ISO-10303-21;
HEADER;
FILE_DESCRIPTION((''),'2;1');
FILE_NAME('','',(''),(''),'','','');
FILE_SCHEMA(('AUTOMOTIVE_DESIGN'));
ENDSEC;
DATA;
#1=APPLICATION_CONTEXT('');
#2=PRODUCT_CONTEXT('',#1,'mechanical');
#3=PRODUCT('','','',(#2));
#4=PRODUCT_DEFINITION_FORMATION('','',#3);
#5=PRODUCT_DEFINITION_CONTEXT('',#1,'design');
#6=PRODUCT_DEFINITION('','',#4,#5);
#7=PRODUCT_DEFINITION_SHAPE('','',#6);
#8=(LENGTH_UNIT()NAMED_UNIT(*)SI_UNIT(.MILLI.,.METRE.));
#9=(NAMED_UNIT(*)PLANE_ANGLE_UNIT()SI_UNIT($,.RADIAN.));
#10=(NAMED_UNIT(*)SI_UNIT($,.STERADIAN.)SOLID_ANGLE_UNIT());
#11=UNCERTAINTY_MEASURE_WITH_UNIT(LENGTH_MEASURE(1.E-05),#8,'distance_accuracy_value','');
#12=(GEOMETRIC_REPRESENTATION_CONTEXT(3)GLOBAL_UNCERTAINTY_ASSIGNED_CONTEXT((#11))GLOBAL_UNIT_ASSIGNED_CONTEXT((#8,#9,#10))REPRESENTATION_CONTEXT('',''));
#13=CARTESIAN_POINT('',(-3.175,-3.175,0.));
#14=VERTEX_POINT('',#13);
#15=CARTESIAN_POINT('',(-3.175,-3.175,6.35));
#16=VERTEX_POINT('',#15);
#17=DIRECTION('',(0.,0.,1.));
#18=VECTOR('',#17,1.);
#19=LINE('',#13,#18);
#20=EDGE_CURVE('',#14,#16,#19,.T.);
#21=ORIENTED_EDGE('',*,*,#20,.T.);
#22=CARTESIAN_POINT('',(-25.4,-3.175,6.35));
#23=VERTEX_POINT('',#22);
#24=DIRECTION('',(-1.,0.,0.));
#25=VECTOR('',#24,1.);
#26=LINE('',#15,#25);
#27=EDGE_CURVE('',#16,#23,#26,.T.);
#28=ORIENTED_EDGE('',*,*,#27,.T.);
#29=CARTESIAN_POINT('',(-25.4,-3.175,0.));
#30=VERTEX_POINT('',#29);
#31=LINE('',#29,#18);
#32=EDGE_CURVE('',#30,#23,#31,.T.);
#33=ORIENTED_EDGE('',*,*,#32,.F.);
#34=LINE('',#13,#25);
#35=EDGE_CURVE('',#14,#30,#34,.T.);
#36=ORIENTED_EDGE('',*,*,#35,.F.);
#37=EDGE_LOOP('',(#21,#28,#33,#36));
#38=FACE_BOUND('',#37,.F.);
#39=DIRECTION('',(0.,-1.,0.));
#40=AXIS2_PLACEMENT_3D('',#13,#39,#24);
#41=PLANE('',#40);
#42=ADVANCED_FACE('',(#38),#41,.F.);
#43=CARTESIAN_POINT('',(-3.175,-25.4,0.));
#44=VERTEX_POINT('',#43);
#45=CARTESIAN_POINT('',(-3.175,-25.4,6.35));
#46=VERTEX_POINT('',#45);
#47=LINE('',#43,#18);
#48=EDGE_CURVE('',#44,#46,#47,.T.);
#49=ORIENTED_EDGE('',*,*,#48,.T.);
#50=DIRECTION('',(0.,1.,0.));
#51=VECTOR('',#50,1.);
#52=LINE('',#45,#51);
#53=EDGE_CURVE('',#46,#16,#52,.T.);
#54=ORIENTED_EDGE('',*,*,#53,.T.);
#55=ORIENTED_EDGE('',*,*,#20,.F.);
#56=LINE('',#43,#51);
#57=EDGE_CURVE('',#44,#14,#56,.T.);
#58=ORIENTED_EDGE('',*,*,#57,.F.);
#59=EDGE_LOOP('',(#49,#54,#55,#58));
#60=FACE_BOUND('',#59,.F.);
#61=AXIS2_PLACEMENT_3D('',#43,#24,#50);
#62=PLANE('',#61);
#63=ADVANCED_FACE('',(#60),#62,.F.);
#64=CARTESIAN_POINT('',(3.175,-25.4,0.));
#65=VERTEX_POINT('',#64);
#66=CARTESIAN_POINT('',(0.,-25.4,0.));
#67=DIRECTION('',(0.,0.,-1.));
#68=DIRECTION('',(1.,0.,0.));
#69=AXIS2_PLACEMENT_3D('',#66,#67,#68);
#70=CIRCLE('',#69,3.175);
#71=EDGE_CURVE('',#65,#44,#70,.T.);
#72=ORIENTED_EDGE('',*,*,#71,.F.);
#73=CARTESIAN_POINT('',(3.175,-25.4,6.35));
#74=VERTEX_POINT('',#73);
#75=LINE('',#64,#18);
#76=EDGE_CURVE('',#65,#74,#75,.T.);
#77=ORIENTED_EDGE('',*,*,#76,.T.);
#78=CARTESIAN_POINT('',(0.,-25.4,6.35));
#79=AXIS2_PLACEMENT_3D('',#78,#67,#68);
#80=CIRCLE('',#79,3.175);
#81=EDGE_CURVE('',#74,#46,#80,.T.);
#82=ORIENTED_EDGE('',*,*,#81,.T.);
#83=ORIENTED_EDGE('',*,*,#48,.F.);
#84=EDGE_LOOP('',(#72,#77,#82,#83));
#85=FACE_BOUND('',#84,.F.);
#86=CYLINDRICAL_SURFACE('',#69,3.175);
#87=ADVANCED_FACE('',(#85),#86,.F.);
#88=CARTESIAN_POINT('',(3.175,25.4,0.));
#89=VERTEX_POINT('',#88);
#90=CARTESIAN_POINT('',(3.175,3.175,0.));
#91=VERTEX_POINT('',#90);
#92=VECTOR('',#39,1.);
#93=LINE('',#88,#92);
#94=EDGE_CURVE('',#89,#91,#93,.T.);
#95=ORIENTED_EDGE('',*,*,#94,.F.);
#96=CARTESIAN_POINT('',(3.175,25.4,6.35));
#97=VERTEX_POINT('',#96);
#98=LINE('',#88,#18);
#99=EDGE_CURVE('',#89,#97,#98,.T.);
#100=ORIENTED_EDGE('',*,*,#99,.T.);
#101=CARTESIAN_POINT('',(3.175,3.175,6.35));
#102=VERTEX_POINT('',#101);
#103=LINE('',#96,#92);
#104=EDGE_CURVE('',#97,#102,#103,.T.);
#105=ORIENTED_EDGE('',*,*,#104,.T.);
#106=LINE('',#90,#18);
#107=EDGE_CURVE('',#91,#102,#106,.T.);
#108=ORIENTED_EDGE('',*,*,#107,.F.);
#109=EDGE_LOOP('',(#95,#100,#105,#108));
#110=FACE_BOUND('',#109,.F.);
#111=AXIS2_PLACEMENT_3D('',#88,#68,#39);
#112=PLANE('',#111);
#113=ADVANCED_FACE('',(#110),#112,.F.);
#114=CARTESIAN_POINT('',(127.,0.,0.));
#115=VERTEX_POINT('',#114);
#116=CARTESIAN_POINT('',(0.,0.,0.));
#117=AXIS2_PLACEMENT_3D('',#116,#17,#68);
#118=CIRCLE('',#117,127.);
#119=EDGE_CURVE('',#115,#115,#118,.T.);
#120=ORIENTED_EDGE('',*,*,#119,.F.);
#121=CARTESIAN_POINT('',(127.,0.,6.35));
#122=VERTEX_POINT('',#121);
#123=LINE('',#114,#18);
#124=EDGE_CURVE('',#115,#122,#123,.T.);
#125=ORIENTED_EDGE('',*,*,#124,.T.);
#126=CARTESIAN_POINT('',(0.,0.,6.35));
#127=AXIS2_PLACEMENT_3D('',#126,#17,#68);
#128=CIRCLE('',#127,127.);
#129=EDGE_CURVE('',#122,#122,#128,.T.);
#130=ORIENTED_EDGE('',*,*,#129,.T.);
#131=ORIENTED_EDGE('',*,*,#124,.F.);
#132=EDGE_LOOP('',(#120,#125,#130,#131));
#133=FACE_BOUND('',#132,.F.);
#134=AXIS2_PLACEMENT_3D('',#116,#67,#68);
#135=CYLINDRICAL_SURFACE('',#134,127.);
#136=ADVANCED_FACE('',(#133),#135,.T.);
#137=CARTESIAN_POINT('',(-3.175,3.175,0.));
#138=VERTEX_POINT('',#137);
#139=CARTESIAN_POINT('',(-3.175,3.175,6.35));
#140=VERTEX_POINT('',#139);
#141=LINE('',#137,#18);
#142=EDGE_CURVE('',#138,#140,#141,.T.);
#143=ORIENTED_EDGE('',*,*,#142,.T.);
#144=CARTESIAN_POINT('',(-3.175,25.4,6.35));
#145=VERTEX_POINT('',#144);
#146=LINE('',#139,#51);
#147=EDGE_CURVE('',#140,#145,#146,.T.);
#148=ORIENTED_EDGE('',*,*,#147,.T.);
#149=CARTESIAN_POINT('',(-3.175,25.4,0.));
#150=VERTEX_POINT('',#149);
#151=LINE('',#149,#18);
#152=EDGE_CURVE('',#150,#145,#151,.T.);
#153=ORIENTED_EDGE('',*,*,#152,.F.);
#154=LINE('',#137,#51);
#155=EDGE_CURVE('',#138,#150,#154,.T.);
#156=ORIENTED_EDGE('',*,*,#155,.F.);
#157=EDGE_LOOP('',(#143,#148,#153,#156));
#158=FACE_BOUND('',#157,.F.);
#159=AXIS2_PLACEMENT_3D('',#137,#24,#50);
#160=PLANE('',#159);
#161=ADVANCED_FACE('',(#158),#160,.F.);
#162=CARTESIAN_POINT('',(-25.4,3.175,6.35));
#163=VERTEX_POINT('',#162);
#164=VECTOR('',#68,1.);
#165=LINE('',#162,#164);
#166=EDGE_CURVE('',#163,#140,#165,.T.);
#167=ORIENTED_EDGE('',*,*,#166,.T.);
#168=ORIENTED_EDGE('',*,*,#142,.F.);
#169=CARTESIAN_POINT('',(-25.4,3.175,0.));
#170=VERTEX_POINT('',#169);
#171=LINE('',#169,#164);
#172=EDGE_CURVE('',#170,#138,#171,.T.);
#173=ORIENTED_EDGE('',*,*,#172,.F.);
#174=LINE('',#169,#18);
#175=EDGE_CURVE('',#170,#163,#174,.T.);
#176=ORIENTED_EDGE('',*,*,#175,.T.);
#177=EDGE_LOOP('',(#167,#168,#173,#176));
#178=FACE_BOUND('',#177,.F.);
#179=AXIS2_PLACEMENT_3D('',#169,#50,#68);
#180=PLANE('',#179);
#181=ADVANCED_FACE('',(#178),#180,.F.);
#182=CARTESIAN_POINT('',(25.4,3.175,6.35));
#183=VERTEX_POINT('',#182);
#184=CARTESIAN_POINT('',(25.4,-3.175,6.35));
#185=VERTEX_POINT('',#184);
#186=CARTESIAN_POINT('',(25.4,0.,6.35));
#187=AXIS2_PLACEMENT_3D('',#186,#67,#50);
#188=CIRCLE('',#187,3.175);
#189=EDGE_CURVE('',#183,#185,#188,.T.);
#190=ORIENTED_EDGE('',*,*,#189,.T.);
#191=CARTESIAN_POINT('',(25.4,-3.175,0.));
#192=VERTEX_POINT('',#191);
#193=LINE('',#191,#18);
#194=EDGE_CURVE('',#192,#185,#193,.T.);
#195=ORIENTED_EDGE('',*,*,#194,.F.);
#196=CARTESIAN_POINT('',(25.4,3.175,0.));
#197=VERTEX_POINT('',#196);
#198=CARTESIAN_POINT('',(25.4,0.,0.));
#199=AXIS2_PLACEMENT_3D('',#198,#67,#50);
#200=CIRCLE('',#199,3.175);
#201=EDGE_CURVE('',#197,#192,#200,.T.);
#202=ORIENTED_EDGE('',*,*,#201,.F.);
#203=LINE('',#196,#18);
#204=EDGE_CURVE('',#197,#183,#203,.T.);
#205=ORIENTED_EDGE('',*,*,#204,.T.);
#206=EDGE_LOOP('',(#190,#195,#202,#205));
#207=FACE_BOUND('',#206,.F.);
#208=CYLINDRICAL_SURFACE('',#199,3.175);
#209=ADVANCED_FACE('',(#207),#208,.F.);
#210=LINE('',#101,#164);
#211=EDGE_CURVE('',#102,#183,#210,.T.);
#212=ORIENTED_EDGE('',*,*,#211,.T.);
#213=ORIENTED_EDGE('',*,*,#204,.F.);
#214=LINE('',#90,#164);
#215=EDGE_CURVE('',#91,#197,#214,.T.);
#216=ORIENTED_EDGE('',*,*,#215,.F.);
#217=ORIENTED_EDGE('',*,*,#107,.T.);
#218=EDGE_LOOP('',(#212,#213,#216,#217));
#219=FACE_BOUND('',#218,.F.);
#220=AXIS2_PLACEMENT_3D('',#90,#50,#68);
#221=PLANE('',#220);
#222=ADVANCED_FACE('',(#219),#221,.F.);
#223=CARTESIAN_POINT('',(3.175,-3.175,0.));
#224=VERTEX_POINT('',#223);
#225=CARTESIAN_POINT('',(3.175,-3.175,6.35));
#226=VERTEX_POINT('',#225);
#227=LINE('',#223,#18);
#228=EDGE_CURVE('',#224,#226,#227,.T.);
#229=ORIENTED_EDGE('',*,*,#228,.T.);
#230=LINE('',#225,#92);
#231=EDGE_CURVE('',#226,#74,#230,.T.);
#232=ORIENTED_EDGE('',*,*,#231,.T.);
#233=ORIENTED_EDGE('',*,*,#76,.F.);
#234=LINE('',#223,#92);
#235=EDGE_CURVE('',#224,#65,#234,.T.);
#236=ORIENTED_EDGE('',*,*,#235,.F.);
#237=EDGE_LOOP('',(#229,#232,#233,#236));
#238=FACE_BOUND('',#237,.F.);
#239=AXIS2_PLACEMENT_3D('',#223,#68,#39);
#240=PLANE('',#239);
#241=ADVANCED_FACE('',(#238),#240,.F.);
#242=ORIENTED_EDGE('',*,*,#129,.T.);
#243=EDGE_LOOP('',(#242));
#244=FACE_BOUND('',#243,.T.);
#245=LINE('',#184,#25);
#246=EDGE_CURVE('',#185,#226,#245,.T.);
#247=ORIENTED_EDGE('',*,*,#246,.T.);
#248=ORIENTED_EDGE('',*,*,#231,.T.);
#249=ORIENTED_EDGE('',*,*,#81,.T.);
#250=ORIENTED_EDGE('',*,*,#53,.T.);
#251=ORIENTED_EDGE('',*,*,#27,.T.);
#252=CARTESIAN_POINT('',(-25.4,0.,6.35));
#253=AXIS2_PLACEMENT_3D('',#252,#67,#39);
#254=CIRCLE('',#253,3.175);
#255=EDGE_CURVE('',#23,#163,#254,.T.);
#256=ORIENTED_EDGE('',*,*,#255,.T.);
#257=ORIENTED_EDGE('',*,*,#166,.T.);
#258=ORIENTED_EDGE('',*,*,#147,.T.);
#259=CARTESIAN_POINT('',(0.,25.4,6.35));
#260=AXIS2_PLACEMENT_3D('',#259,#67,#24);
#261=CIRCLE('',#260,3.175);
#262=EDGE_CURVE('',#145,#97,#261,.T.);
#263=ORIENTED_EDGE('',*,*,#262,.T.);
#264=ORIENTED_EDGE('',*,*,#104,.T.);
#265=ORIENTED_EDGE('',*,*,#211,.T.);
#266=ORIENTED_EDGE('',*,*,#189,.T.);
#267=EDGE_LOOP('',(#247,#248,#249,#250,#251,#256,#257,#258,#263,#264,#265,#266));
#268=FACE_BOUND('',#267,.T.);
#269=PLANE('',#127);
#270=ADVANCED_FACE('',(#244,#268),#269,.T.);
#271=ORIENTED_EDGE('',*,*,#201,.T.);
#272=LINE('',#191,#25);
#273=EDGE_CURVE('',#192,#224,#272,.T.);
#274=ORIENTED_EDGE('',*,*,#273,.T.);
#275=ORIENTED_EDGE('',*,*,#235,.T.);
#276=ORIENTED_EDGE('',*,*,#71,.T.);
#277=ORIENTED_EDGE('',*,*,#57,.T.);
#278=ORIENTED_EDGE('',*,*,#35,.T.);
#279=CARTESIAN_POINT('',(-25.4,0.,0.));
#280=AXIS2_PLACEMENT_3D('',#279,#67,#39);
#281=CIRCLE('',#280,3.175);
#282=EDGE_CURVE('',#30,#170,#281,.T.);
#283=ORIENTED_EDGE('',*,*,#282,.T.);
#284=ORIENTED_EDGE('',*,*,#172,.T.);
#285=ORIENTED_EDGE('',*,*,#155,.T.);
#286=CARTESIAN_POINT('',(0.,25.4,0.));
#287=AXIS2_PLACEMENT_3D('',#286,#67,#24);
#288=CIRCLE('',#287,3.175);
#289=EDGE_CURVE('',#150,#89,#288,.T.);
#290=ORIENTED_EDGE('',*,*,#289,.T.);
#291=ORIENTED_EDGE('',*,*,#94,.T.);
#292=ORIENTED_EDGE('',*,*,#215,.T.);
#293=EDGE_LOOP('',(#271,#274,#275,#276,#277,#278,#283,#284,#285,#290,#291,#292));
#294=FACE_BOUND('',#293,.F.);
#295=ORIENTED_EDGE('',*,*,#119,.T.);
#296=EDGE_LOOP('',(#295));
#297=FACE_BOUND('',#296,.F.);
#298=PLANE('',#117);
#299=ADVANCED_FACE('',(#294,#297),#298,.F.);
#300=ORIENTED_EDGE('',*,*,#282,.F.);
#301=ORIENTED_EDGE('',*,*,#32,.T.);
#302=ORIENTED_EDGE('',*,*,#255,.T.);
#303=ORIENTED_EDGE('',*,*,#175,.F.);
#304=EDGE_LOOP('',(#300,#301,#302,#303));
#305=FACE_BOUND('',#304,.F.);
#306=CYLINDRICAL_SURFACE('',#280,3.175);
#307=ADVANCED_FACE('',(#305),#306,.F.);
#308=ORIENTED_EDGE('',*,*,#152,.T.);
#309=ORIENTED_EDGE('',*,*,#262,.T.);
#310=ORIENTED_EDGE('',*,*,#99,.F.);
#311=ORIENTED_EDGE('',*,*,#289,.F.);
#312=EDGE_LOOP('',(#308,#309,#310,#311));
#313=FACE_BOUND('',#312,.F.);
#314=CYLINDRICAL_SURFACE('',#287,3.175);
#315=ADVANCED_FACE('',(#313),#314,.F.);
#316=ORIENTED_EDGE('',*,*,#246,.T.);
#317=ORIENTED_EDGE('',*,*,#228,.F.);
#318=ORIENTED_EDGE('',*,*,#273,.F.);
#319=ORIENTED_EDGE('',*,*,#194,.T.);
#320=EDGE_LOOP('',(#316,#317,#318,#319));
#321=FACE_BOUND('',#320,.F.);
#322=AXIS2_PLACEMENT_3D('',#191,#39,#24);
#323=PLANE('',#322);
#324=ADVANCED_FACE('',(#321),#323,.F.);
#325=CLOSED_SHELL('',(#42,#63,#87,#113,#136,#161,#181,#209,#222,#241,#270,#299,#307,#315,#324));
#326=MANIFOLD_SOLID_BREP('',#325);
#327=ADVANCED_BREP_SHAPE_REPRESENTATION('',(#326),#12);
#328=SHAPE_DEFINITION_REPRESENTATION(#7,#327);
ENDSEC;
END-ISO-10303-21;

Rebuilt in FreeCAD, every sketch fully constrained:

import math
import FreeCAD as App
import Part
import Sketcher
Q = App.Units.Quantity

doc = App.newDocument("Part")
body = doc.addObject("PartDesign::Body", "Body")

sketch1 = doc.addObject("Sketcher::SketchObject", "Sketch")
body.addObject(sketch1)
sketch1.AttachmentSupport = (doc.XY_Plane, [""])
sketch1.MapMode = "FlatFace"
sketch1.addGeometry(Part.Circle(App.Vector(0, 0, 0), App.Vector(0, 0, 1), 127), False)
sketch1.addGeometry(Part.ArcOfCircle(Part.Circle(App.Vector(0, -25.4, 0), App.Vector(0, 0, 1), 3.2), math.radians(180), math.radians(360)), False)
sketch1.addGeometry(Part.LineSegment(App.Vector(-3.2, -25.4, 0), App.Vector(-3.2, -3.2, 0)), False)
sketch1.addGeometry(Part.LineSegment(App.Vector(-3.2, -3.2, 0), App.Vector(-25.4, -3.2, 0)), False)
sketch1.addGeometry(Part.ArcOfCircle(Part.Circle(App.Vector(-25.4, 0, 0), App.Vector(0, 0, 1), 3.2), math.radians(90), math.radians(270)), False)
sketch1.addGeometry(Part.LineSegment(App.Vector(-25.4, 3.2, 0), App.Vector(-3.2, 3.2, 0)), False)
sketch1.addGeometry(Part.LineSegment(App.Vector(-3.2, 3.2, 0), App.Vector(-3.2, 25.4, 0)), False)
sketch1.addGeometry(Part.ArcOfCircle(Part.Circle(App.Vector(0, 25.4, 0), App.Vector(0, 0, 1), 3.2), math.radians(0), math.radians(180)), False)
sketch1.addGeometry(Part.LineSegment(App.Vector(3.2, 25.4, 0), App.Vector(3.2, 3.2, 0)), False)
sketch1.addGeometry(Part.LineSegment(App.Vector(3.2, 3.2, 0), App.Vector(25.4, 3.2, 0)), False)
sketch1.addGeometry(Part.ArcOfCircle(Part.Circle(App.Vector(25.4, 0, 0), App.Vector(0, 0, 1), 3.2), math.radians(-90), math.radians(90)), False)
sketch1.addGeometry(Part.LineSegment(App.Vector(25.4, -3.2, 0), App.Vector(3.2, -3.2, 0)), False)
sketch1.addGeometry(Part.LineSegment(App.Vector(3.2, -3.2, 0), App.Vector(3.2, -25.4, 0)), False)
sketch1.addConstraint(Sketcher.Constraint("Tangent", 1, 1, 2, 1))
sketch1.addConstraint(Sketcher.Constraint("Coincident", 2, 2, 3, 1))
sketch1.addConstraint(Sketcher.Constraint("Tangent", 3, 2, 4, 2))
sketch1.addConstraint(Sketcher.Constraint("Tangent", 4, 1, 5, 1))
sketch1.addConstraint(Sketcher.Constraint("Coincident", 5, 2, 6, 1))
sketch1.addConstraint(Sketcher.Constraint("Tangent", 6, 2, 7, 2))
sketch1.addConstraint(Sketcher.Constraint("Tangent", 7, 1, 8, 1))
sketch1.addConstraint(Sketcher.Constraint("Coincident", 8, 2, 9, 1))
sketch1.addConstraint(Sketcher.Constraint("Tangent", 9, 2, 10, 2))
sketch1.addConstraint(Sketcher.Constraint("Tangent", 10, 1, 11, 1))
sketch1.addConstraint(Sketcher.Constraint("Coincident", 11, 2, 12, 1))
sketch1.addConstraint(Sketcher.Constraint("Tangent", 12, 2, 1, 2))
sketch1.addConstraint(Sketcher.Constraint("Vertical", 2))
sketch1.addConstraint(Sketcher.Constraint("Horizontal", 3))
sketch1.addConstraint(Sketcher.Constraint("Horizontal", 5))
sketch1.addConstraint(Sketcher.Constraint("Vertical", 6))
sketch1.addConstraint(Sketcher.Constraint("Vertical", 8))
sketch1.addConstraint(Sketcher.Constraint("Horizontal", 9))
sketch1.addConstraint(Sketcher.Constraint("Horizontal", 11))
sketch1.addConstraint(Sketcher.Constraint("Vertical", 12))
sketch1.addConstraint(Sketcher.Constraint("Coincident", 0, 3, -1, 1))
sketch1.addConstraint(Sketcher.Constraint("Equal", 1, 4))
sketch1.addConstraint(Sketcher.Constraint("Equal", 4, 7))
sketch1.addConstraint(Sketcher.Constraint("Equal", 7, 10))
sketch1.addConstraint(Sketcher.Constraint("Symmetric", 1, 3, 7, 3, -1, 1))
sketch1.addConstraint(Sketcher.Constraint("Symmetric", 4, 3, 10, 3, -1, 1))
sketch1.addConstraint(Sketcher.Constraint("Symmetric", 5, 2, 8, 2, -2))
sketch1.addConstraint(Sketcher.Constraint("Equal", 11, 2))
sketch1.addConstraint(Sketcher.Constraint("Diameter", 0, Q("10 in")))
sketch1.addConstraint(Sketcher.Constraint("DistanceY", 1, 3, -1, 1, Q("1 in")))
sketch1.addConstraint(Sketcher.Constraint("Radius", 1, Q("0.125 in")))
pad1 = doc.addObject("PartDesign::Pad", "Pad")
body.addObject(pad1)
pad1.Profile = sketch1
pad1.Length = Q("0.25 in")

doc.recompute()
